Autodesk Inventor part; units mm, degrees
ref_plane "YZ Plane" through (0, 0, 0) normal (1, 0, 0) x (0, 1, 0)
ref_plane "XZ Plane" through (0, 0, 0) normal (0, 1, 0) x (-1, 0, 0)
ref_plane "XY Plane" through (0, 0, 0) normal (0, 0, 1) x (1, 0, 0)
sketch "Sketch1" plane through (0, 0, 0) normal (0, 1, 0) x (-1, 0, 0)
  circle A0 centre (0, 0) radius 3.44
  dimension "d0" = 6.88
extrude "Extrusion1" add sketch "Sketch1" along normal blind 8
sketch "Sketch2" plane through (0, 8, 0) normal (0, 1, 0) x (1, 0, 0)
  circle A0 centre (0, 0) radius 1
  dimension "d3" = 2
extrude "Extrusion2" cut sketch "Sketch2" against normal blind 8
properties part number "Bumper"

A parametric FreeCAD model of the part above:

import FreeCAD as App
import Part
import Sketcher
from FreeCAD import Vector
Q = App.Units.Quantity

doc = App.newDocument("Part")
body = doc.addObject("PartDesign::Body", "Body")

sketch1 = body.newObject("Sketcher::SketchObject", "Sketch")
sketch1.AttachmentSupport = (doc.getObject("XZ_Plane"), [""])
sketch1.MapMode = "FlatFace"
sketch1.addGeometry(Part.Circle(Vector(0, 0, 0), Vector(0, 0, 1), 3.4), False)
sketch1.addConstraint(Sketcher.Constraint("Coincident", 0, 3, -1, 1))
sketch1.addConstraint(Sketcher.Constraint("Diameter", 0, Q("6.88 mm")))
pad1 = body.newObject("PartDesign::Pad", "Pad")
pad1.Profile = sketch1
pad1.Length = 8
pad1.Reversed = True

sketch2 = body.newObject("Sketcher::SketchObject", "Sketch001")
sketch2.AttachmentSupport = (doc.getObject("XZ_Plane"), [""])
sketch2.MapMode = "FlatFace"
sketch2.AttachmentOffset = App.Placement(Vector(0, 0, -8), App.Rotation())
sketch2.addGeometry(Part.Circle(Vector(0, 0, 0), Vector(0, 0, 1), 1), False)
sketch2.addConstraint(Sketcher.Constraint("Coincident", 0, 3, -1, 1))
sketch2.addConstraint(Sketcher.Constraint("Diameter", 0, Q("2 mm")))
pocket1 = body.newObject("PartDesign::Pocket", "Pocket")
pocket1.Profile = sketch2
pocket1.Length = 8
pocket1.Reversed = True

doc.recompute()
